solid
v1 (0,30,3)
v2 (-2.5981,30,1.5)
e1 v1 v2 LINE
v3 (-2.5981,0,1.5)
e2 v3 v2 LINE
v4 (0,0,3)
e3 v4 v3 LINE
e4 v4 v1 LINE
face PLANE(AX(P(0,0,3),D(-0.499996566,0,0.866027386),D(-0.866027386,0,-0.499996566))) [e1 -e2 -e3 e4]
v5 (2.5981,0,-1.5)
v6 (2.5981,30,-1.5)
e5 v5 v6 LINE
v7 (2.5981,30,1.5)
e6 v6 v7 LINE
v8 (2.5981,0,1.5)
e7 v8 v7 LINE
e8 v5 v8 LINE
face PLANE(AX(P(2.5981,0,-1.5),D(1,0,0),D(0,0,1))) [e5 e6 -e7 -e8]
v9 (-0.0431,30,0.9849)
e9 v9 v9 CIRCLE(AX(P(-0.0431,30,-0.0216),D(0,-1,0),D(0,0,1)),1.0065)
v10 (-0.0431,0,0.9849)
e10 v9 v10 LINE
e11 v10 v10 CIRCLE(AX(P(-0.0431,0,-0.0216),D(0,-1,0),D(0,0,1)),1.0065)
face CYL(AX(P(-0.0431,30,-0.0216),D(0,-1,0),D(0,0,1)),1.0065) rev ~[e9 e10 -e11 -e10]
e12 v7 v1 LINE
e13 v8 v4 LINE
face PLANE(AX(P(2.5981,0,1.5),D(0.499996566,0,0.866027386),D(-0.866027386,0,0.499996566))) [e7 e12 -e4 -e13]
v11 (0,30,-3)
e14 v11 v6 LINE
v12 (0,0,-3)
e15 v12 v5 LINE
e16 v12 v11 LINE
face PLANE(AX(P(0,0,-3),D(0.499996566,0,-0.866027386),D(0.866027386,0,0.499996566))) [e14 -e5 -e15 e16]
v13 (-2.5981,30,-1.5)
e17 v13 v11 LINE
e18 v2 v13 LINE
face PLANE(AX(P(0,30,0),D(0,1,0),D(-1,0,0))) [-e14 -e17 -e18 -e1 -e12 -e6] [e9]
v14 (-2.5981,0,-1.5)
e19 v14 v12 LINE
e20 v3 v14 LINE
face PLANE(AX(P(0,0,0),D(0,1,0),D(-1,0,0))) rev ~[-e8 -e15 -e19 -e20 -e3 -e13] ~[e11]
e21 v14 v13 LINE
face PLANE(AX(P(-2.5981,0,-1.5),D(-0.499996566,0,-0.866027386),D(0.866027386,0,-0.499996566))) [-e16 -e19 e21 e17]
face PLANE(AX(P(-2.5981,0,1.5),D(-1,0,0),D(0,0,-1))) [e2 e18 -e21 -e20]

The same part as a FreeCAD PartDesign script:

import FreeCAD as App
import Part
import Sketcher

V = App.Vector
Q = App.Units.Quantity

doc = App.newDocument("Part")
body = doc.addObject("PartDesign::Body", "Body")

sketch1 = body.newObject("Sketcher::SketchObject", "Sketch")
sketch1.AttachmentSupport = (doc.getObject("XZ_Plane"), [""])
sketch1.MapMode = "FlatFace"
sketch1.addGeometry(Part.LineSegment(V(2.6, -1.5, 0), V(0, -3, 0)), False)
sketch1.addGeometry(Part.LineSegment(V(0, -3, 0), V(-2.6, -1.5, 0)), False)
sketch1.addGeometry(Part.LineSegment(V(-2.6, -1.5, 0), V(-2.6, 1.5, 0)), False)
sketch1.addGeometry(Part.LineSegment(V(-2.6, 1.5, 0), V(0, 3, 0)), False)
sketch1.addGeometry(Part.LineSegment(V(0, 3, 0), V(2.6, 1.5, 0)), False)
sketch1.addGeometry(Part.LineSegment(V(2.6, 1.5, 0), V(2.6, -1.5, 0)), False)
sketch1.addConstraint(Sketcher.Constraint("Coincident", 0, 2, 1, 1))
sketch1.addConstraint(Sketcher.Constraint("Coincident", 1, 2, 2, 1))
sketch1.addConstraint(Sketcher.Constraint("Coincident", 2, 2, 3, 1))
sketch1.addConstraint(Sketcher.Constraint("Coincident", 3, 2, 4, 1))
sketch1.addConstraint(Sketcher.Constraint("Coincident", 4, 2, 5, 1))
sketch1.addConstraint(Sketcher.Constraint("Coincident", 5, 2, 0, 1))
sketch1.addConstraint(Sketcher.Constraint("Vertical", 2))
sketch1.addConstraint(Sketcher.Constraint("Vertical", 5))
sketch1.addConstraint(Sketcher.Constraint("Symmetric", 0, 2, 3, 2, -1, 1))
sketch1.addConstraint(Sketcher.Constraint("Symmetric", 1, 2, 4, 2, -1, 1))
sketch1.addConstraint(Sketcher.Constraint("PointOnObject", 0, 2, -2))
sketch1.addConstraint(Sketcher.Constraint("Parallel", 0, 3))
sketch1.addConstraint(Sketcher.Constraint("Horizontal", 2, 2, 4, 2))
sketch1.addConstraint(Sketcher.Constraint("DistanceY", 0, 2, 3, 2, Q("6 mm")))
sketch1.addConstraint(Sketcher.Constraint("DistanceY", 2, 1, 2, 2, Q("3 mm")))
sketch1.addConstraint(Sketcher.Constraint("Angle", 0, Q("-150.0002 deg")))
pad1 = body.newObject("PartDesign::Pad", "Pad")
pad1.Profile = sketch1
pad1.Length = 30
pad1.Reversed = True

sketch2 = body.newObject("Sketcher::SketchObject", "Sketch001")
sketch2.AttachmentSupport = (doc.getObject("XZ_Plane"), [""])
sketch2.MapMode = "FlatFace"
sketch2.AttachmentOffset = App.Placement(V(0, 0, -30), App.Rotation())
sketch2.addGeometry(Part.Circle(V(0, 0, 0), V(0, 0, 1), 1), False)
sketch2.addConstraint(Sketcher.Constraint("Diameter", 0, Q("2.013 mm")))
sketch2.addConstraint(Sketcher.Constraint("DistanceX", 0, 3, -1, 1, Q("0.043 mm")))
sketch2.addConstraint(Sketcher.Constraint("DistanceY", 0, 3, -1, 1, Q("0.0216 mm")))
doc.recompute()
hole = body.newObject("PartDesign::Hole", "Hole")
hole.Profile = sketch2
hole.ThreadType = "None"
hole.Diameter = 2.013
hole.DepthType = "ThroughAll"
hole.Reversed = True

doc.recompute()
